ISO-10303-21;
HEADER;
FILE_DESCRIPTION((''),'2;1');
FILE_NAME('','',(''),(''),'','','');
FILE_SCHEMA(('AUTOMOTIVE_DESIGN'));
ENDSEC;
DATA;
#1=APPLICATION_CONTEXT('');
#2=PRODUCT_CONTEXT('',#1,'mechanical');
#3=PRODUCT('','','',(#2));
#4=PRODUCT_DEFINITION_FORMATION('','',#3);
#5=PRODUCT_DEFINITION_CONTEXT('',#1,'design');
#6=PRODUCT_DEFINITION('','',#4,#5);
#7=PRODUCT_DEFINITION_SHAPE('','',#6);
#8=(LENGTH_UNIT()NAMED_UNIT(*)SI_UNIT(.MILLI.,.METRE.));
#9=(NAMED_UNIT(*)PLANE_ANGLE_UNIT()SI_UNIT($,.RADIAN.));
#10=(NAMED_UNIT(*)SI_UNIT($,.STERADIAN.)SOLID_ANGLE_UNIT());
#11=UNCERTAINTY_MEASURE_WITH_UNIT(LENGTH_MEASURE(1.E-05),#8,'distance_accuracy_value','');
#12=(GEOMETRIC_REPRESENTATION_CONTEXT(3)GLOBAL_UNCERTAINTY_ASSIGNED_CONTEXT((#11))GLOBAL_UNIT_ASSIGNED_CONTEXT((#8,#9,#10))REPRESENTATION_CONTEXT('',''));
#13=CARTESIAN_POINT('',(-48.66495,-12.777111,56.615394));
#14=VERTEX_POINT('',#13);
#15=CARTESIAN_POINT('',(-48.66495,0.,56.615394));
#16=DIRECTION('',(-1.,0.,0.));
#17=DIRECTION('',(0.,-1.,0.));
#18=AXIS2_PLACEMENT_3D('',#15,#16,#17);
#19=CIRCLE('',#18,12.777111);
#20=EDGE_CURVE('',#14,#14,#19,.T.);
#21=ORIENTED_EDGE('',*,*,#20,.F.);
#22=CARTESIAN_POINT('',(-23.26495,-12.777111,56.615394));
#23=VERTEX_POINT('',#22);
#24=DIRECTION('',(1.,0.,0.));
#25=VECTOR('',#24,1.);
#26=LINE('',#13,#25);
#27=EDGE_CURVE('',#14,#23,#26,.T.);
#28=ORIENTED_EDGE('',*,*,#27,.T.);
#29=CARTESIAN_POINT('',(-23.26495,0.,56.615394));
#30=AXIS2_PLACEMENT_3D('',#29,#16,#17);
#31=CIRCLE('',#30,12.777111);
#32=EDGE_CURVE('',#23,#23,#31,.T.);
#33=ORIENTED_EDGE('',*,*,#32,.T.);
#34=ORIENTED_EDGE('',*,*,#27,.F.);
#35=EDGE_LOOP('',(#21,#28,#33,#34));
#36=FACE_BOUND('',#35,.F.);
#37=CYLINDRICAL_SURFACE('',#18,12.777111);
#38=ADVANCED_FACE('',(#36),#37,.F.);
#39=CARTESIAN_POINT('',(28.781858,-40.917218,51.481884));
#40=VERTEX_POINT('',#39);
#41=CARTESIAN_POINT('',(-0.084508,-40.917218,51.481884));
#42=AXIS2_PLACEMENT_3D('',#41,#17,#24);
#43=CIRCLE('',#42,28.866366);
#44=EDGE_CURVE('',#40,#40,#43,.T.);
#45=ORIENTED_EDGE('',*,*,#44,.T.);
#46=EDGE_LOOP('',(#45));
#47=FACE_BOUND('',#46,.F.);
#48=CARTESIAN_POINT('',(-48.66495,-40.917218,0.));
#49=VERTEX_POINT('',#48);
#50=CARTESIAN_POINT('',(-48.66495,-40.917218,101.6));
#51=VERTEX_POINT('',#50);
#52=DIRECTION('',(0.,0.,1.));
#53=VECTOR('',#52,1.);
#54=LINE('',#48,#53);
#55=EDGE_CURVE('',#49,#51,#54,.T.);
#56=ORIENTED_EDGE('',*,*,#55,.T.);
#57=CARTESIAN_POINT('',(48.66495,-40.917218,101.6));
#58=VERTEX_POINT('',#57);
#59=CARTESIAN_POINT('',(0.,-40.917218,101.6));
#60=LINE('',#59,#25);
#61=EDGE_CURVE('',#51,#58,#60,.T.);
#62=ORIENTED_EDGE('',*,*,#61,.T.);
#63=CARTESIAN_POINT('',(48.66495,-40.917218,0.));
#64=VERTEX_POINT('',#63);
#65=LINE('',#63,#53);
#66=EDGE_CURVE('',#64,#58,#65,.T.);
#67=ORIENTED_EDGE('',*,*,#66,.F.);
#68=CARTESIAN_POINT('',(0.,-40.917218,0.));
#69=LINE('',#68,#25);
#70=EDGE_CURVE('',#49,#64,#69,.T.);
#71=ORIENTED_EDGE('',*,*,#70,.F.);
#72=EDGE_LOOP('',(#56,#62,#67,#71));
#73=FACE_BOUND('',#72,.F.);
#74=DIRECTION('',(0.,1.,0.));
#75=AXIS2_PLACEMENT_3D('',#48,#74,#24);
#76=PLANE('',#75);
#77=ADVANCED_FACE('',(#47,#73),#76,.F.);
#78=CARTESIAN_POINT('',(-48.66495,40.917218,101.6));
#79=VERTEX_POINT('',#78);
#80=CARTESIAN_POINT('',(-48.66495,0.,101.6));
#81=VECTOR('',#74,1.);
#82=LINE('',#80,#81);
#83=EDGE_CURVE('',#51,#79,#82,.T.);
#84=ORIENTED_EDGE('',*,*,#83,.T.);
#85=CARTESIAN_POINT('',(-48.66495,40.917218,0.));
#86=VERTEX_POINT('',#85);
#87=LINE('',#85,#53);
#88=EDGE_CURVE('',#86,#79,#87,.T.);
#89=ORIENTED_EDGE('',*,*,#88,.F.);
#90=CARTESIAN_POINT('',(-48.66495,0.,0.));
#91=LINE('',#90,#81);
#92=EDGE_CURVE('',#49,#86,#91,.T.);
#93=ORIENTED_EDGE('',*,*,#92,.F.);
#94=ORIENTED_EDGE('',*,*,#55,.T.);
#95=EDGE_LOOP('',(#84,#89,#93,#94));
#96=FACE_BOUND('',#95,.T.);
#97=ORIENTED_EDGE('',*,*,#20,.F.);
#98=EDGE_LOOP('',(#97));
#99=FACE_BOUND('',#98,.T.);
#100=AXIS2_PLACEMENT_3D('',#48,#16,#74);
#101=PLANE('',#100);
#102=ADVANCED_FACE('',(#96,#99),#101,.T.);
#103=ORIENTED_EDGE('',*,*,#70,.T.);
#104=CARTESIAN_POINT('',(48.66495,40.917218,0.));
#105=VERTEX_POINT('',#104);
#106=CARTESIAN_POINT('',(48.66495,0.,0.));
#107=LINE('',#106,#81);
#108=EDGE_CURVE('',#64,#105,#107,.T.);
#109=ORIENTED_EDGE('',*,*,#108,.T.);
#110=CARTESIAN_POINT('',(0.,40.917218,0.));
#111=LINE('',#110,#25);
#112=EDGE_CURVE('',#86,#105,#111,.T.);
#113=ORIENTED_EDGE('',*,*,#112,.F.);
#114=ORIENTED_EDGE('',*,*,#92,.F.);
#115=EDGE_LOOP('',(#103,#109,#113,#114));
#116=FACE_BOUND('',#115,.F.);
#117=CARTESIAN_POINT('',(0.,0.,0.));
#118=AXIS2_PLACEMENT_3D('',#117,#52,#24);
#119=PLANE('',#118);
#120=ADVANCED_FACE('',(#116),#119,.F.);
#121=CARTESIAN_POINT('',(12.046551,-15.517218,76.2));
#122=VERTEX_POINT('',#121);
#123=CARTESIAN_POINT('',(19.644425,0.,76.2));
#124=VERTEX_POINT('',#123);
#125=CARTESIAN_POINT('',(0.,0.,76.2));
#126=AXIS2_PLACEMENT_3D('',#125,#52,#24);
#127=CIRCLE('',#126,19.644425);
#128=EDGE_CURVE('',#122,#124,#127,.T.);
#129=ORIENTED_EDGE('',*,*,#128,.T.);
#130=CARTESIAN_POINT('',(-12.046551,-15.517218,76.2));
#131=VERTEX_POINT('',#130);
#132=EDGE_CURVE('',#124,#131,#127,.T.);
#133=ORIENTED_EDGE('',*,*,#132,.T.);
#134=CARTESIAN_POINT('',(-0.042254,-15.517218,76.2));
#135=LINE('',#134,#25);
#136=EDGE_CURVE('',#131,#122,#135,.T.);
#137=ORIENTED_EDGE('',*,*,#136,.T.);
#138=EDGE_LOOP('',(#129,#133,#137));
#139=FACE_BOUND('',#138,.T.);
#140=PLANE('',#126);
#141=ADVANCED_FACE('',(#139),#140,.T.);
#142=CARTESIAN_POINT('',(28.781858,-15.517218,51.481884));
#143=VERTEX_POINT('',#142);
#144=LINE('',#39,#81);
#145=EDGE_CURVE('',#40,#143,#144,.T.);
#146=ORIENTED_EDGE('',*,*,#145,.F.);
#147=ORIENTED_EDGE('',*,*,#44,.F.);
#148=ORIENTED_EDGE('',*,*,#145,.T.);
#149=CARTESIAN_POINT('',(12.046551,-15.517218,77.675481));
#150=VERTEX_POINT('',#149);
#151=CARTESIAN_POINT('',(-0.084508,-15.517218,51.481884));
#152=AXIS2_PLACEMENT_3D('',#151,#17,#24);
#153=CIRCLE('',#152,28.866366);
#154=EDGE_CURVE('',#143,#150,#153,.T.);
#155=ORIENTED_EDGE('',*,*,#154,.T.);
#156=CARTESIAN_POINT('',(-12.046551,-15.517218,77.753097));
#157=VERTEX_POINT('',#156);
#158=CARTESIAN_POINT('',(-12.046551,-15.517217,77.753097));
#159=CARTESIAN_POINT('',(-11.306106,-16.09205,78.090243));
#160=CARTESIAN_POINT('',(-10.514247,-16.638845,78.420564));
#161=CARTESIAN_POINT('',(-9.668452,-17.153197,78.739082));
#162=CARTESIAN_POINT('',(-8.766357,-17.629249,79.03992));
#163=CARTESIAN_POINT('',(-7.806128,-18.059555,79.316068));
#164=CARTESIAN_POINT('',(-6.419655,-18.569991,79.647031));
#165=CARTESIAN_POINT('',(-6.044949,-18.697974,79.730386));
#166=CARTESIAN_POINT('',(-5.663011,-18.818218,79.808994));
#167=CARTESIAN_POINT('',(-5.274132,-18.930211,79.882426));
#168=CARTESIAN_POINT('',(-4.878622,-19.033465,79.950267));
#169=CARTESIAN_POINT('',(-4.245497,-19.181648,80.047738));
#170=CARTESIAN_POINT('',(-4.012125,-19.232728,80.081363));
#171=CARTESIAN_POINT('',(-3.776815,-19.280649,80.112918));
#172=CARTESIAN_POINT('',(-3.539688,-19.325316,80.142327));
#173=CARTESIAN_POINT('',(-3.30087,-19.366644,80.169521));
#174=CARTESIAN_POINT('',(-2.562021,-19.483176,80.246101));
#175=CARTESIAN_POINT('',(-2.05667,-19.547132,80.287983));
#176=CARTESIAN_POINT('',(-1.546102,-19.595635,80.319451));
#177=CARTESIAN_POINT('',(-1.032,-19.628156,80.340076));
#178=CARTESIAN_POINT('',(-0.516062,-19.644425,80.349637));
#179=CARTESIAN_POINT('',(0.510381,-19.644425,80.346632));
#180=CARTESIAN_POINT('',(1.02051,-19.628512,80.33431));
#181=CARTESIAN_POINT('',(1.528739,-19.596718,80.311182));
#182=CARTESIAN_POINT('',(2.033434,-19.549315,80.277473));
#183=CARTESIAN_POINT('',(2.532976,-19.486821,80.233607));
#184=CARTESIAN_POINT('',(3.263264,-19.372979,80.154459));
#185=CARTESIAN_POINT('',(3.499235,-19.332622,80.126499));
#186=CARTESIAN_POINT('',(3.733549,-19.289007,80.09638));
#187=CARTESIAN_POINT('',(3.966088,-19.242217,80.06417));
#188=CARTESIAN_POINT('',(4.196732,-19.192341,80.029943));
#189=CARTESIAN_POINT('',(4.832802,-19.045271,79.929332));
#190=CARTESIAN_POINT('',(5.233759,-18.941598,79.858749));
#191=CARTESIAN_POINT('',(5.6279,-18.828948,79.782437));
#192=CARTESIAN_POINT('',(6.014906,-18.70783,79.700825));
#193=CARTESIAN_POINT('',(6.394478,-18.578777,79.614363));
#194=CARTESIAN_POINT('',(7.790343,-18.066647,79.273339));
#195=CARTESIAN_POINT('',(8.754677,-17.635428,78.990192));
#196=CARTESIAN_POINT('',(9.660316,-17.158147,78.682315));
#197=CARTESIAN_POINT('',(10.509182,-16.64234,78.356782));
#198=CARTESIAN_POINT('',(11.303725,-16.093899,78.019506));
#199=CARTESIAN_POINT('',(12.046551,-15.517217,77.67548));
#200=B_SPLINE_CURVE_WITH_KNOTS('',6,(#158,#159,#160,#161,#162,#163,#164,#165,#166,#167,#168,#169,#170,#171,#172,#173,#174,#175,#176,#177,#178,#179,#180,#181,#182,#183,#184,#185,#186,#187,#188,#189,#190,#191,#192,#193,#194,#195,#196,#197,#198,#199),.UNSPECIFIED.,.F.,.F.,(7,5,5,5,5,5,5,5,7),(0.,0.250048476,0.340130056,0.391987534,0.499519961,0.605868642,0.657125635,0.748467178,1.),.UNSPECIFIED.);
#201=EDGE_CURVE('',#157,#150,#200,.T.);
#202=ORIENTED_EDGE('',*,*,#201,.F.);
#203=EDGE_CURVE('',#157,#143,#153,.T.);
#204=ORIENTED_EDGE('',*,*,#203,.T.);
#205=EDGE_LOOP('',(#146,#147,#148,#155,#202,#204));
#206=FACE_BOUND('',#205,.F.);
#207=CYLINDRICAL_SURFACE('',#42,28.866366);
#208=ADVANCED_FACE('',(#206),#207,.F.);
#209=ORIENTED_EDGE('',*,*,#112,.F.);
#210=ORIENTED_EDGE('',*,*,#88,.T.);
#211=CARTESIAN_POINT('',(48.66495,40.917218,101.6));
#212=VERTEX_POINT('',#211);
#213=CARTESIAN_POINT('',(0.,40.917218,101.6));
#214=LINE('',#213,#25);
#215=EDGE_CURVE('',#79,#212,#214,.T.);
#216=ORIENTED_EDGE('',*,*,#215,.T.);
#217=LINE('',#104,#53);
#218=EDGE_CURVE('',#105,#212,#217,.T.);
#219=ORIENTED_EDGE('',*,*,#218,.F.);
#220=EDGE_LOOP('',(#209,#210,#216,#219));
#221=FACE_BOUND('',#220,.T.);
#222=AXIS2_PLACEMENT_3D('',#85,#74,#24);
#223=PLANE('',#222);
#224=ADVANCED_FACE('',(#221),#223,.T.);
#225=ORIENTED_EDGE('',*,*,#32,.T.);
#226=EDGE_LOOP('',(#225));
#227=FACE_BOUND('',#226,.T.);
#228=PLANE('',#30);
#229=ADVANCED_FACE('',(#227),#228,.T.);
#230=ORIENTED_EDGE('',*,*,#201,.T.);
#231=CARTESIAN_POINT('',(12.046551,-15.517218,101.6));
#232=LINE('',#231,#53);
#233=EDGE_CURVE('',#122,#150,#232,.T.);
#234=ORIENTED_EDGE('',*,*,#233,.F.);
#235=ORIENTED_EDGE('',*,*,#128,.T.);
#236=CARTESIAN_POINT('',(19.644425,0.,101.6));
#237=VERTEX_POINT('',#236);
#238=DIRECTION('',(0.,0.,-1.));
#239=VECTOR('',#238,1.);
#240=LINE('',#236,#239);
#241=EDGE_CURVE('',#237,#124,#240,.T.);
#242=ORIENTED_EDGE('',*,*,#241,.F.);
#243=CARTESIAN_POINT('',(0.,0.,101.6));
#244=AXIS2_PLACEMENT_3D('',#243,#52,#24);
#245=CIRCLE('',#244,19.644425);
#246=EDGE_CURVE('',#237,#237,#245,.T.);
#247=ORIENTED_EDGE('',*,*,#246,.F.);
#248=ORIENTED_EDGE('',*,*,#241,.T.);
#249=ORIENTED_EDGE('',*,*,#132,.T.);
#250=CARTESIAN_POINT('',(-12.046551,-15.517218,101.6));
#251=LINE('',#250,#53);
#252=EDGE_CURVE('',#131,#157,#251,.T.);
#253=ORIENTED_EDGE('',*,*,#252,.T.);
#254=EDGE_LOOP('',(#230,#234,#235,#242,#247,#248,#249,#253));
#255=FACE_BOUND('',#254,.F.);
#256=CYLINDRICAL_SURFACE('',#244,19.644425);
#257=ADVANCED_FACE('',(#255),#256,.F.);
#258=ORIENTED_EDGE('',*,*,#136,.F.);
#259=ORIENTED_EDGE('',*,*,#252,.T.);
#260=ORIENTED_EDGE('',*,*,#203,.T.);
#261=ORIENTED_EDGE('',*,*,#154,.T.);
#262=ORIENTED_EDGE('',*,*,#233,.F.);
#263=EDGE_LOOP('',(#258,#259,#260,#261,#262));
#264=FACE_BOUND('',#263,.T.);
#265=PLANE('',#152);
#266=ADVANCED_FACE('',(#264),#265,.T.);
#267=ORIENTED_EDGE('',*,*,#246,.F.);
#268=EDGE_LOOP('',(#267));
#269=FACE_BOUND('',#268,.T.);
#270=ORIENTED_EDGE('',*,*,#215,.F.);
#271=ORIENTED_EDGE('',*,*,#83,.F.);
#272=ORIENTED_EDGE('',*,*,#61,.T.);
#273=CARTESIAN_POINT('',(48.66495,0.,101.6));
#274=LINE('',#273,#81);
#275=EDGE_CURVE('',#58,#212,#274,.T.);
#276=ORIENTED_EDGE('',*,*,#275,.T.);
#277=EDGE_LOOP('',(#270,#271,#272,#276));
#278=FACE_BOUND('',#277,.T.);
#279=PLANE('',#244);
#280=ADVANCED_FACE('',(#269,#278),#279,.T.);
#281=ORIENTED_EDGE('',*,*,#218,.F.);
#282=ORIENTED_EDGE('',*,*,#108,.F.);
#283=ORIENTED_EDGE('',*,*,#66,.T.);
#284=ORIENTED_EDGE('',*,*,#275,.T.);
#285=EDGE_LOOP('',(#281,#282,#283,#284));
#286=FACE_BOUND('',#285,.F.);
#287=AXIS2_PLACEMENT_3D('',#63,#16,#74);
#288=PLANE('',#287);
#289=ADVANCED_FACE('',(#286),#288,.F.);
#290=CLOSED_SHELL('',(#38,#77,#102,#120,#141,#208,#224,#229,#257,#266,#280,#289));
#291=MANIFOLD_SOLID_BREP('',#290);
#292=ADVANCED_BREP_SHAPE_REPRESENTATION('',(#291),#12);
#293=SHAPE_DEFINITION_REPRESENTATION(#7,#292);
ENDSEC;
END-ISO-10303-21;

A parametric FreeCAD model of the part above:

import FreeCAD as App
import Part
import Sketcher

V = App.Vector
Q = App.Units.Quantity


def add_polygon(sketch, points):
    """Adds a closed chain of lines whose ends are joined by coincident constraints."""
    first, n = sketch.GeometryCount, len(points)
    for a, b in zip(points, points[1:] + points[:1]):
        sketch.addGeometry(Part.LineSegment(App.Vector(*a, 0), App.Vector(*b, 0)), False)
    for i in range(n):
        sketch.addConstraint(Sketcher.Constraint("Coincident", first + i, 2, first + (i + 1) % n, 1))

doc = App.newDocument("Part")
body = doc.addObject("PartDesign::Body", "Body")

# Sketch on XY plane
sketch1 = body.newObject("Sketcher::SketchObject", "Sketch")
sketch1.AttachmentSupport = (doc.getObject("XY_Plane"), [""])
sketch1.MapMode = "FlatFace"
add_polygon(sketch1, [(-49, 41), (-49, -41), (49, -41), (49, 41)])  # lines 0-3
sketch1.addConstraint([
    Sketcher.Constraint("Vertical", 0),
    Sketcher.Constraint("Horizontal", 1),
    Sketcher.Constraint("Vertical", 2),
    Sketcher.Constraint("Horizontal", 3),
    Sketcher.Constraint("Symmetric", 0, 2, 2, 2, -1, 1),
    Sketcher.Constraint("DistanceX", 1, 1, 1, 2, Q("97.3299 mm")),
    Sketcher.Constraint("DistanceY", 0, 2, 0, 1, Q("81.834436 mm")),
])
pad1 = body.newObject("PartDesign::Pad", "Pad")
pad1.Profile = sketch1
pad1.Length = Q("4 in")

# Sketch on XY plane
sketch2 = body.newObject("Sketcher::SketchObject", "Sketch001")
sketch2.AttachmentSupport = (doc.getObject("XY_Plane"), [""])
sketch2.MapMode = "FlatFace"
sketch2.AttachmentOffset = App.Placement(V(0, 0, 4 * 25.4), App.Rotation())
sketch2.addGeometry(Part.Circle(V(0, 0, 0), V(0, 0, 1), 20), False)
sketch2.addConstraint([
    Sketcher.Constraint("Coincident", 0, 3, -1, 1),
    Sketcher.Constraint("Diameter", 0, Q("39.28885 mm")),
])
pocket1 = body.newObject("PartDesign::Pocket", "Pocket")
pocket1.Profile = sketch2
pocket1.Length = Q("1 in")

# Sketch on YZ plane
sketch3 = body.newObject("Sketcher::SketchObject", "Sketch002")
sketch3.AttachmentSupport = (doc.getObject("YZ_Plane"), [""])
sketch3.MapMode = "FlatFace"
sketch3.AttachmentOffset = App.Placement(V(0, 0, -48.66495), App.Rotation())
sketch3.addGeometry(Part.Circle(V(0, 57, 0), V(0, 0, 1), 13), False)
sketch3.addConstraint([
    Sketcher.Constraint("PointOnObject", 0, 3, -2),
    Sketcher.Constraint("Diameter", 0, Q("25.554222 mm")),
    Sketcher.Constraint("DistanceY", -1, 1, 0, 3, Q("56.615394 mm")),
])
pocket2 = body.newObject("PartDesign::Pocket", "Pocket001")
pocket2.Profile = sketch3
pocket2.Length = Q("1 in")
pocket2.Reversed = True

# Sketch on XZ plane
sketch4 = body.newObject("Sketcher::SketchObject", "Sketch003")
sketch4.AttachmentSupport = (doc.getObject("XZ_Plane"), [""])
sketch4.MapMode = "FlatFace"
sketch4.AttachmentOffset = App.Placement(V(0, 0, 40.917218), App.Rotation())
sketch4.addGeometry(Part.Circle(V(0, 51, 0), V(0, 0, 1), 29), False)
sketch4.addConstraint([
    Sketcher.Constraint("Diameter", 0, Q("57.732732 mm")),
    Sketcher.Constraint("DistanceX", 0, 3, -1, 1, Q("0.084508 mm")),
    Sketcher.Constraint("DistanceY", -1, 1, 0, 3, Q("51.481884 mm")),
])
pocket3 = body.newObject("PartDesign::Pocket", "Pocket002")
pocket3.Profile = sketch4
pocket3.Length = Q("1 in")

doc.recompute()
